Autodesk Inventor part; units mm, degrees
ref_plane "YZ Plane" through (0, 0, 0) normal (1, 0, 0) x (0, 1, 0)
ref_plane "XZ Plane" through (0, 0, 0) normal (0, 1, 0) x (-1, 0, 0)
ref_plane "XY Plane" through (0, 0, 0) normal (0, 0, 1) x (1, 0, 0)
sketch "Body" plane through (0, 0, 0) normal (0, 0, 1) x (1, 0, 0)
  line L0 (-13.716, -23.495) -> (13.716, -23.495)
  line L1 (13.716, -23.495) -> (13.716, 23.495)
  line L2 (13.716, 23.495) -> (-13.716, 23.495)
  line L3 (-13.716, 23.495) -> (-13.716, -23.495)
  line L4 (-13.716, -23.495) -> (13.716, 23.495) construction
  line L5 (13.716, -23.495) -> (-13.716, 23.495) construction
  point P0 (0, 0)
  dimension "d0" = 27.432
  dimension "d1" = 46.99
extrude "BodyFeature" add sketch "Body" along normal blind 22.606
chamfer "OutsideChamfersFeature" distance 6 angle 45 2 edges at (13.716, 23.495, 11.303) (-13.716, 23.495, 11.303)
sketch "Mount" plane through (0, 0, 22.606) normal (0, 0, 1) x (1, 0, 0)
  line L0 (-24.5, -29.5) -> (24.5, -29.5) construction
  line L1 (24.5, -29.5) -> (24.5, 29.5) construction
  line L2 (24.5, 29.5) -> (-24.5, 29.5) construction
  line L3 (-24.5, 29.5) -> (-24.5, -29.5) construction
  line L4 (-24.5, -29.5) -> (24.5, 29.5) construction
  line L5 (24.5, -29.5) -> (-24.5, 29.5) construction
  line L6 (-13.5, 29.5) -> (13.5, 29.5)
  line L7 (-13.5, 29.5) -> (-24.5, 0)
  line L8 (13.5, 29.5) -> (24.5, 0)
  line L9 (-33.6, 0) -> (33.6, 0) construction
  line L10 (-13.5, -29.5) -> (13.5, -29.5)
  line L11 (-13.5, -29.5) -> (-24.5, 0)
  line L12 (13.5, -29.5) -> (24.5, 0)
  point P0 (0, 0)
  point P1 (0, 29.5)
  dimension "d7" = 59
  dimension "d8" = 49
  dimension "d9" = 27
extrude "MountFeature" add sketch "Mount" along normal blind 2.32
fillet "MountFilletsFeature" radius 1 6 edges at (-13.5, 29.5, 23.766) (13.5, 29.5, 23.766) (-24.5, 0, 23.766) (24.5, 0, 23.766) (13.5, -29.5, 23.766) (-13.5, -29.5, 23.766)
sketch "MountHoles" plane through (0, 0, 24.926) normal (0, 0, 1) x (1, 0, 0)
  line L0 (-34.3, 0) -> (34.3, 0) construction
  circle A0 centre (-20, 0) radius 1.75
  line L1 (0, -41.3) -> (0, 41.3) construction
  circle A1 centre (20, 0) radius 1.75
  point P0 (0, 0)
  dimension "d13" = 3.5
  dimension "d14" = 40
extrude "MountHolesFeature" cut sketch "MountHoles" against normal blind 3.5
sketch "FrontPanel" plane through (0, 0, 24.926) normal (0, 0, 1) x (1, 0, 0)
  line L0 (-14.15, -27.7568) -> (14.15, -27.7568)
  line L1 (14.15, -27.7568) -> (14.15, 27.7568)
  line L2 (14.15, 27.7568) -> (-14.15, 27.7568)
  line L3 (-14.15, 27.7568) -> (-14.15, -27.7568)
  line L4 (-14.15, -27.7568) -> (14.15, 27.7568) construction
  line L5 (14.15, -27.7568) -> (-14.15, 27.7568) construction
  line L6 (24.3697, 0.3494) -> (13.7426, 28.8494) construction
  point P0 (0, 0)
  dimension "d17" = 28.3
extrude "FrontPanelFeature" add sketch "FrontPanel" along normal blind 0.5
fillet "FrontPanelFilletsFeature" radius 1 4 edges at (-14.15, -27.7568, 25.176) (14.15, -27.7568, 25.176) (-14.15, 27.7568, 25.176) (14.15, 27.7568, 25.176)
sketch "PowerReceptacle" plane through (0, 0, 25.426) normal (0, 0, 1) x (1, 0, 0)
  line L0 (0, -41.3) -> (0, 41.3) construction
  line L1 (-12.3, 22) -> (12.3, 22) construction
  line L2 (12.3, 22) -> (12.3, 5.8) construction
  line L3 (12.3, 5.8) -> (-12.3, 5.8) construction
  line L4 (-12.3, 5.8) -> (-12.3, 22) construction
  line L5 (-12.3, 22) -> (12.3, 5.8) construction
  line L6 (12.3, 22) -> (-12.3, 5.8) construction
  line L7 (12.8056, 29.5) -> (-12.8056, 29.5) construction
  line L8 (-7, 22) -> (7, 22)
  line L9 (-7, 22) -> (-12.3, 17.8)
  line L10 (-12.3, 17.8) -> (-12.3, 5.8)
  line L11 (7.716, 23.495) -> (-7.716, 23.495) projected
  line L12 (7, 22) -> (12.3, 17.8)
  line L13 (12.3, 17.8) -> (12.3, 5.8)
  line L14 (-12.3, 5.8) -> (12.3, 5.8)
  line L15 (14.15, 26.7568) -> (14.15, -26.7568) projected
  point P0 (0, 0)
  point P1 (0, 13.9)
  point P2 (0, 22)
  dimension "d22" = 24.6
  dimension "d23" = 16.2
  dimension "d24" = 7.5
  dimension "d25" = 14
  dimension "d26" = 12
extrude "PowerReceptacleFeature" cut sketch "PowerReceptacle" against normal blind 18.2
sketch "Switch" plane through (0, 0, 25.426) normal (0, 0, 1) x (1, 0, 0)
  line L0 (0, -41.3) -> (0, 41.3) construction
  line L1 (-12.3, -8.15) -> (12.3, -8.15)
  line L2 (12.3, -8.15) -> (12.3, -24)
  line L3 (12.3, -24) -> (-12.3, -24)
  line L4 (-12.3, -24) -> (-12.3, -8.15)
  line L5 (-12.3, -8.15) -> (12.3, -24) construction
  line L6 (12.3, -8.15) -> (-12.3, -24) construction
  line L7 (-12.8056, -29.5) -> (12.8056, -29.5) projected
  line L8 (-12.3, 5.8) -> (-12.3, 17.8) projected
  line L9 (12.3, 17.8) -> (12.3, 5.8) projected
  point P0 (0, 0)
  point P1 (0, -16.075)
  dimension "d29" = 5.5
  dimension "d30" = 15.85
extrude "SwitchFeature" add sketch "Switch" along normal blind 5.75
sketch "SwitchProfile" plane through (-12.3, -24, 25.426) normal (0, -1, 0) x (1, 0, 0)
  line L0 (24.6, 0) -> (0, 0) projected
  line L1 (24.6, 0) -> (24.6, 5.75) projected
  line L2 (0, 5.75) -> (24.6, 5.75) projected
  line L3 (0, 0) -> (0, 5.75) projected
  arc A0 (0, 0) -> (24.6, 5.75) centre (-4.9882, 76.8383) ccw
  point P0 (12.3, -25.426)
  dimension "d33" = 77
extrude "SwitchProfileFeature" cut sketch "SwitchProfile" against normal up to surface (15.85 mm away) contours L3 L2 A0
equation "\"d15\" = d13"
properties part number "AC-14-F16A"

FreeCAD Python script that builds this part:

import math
import FreeCAD as App
import Part
import Sketcher
from FreeCAD import Vector


def edges_at(feature, points):
    """Names of the edges that pass closest to the given points."""
    edges = feature.Shape.Edges
    near = lambda p: min(range(len(edges)), key=lambda i: edges[i].distToShape(Part.Vertex(*p))[0])
    return sorted({f"Edge{near(p) + 1}" for p in points})


def add_polygon(sketch, points):
    """Adds a closed chain of lines whose ends are joined by coincident constraints."""
    first, n = sketch.GeometryCount, len(points)
    for a, b in zip(points, points[1:] + points[:1]):
        sketch.addGeometry(Part.LineSegment(App.Vector(*a, 0), App.Vector(*b, 0)), False)
    for i in range(n):
        sketch.addConstraint(Sketcher.Constraint("Coincident", first + i, 2, first + (i + 1) % n, 1))

doc = App.newDocument("Part")
body = doc.addObject("PartDesign::Body", "Body")

# Sketch on XY plane
sketch1 = body.newObject("Sketcher::SketchObject", "Sketch")
sketch1.AttachmentSupport = (doc.getObject("XY_Plane"), [""])
sketch1.MapMode = "FlatFace"
add_polygon(sketch1, [(-14, 23), (-14, -23), (14, -23), (14, 23)])  # lines 0-3
sketch1.addConstraint(Sketcher.Constraint("Vertical", 0))
sketch1.addConstraint(Sketcher.Constraint("Horizontal", 1))
sketch1.addConstraint(Sketcher.Constraint("Vertical", 2))
sketch1.addConstraint(Sketcher.Constraint("Horizontal", 3))
sketch1.addConstraint(Sketcher.Constraint("Symmetric", 0, 2, 2, 2, -1, 1))
sketch1.addConstraint(Sketcher.Constraint("DistanceY", 0, 2, 0, 1, 46.99))
sketch1.addConstraint(Sketcher.Constraint("DistanceX", 1, 1, 1, 2, 27.432))
pad1 = body.newObject("PartDesign::Pad", "Pad")
pad1.Profile = sketch1
pad1.Length = 22.606
doc.recompute()

chamfer = body.newObject("PartDesign::Chamfer", "Chamfer")
chamfer.Base = (pad1, edges_at(pad1, [(13.716, 23.495, 11.303), (-13.716, 23.495, 11.303)]))
chamfer.Size = 6

# Sketch on XY plane
sketch2 = body.newObject("Sketcher::SketchObject", "Sketch001")
sketch2.AttachmentSupport = (doc.getObject("XY_Plane"), [""])
sketch2.MapMode = "FlatFace"
sketch2.AttachmentOffset = App.Placement(Vector(0, 0, 22.606), App.Rotation())
add_polygon(sketch2, [(14, 30), (-14, 30), (-24, 0), (-14, -30), (14, -30), (24, 0)])  # lines 0-5
sketch2.addConstraint(Sketcher.Constraint("Horizontal", 0))
sketch2.addConstraint(Sketcher.Constraint("Horizontal", 3))
sketch2.addConstraint(Sketcher.Constraint("Symmetric", 0, 2, 3, 2, -1, 1))
sketch2.addConstraint(Sketcher.Constraint("Symmetric", 1, 2, 4, 2, -1, 1))
sketch2.addConstraint(Sketcher.Constraint("PointOnObject", 1, 2, -1))
sketch2.addConstraint(Sketcher.Constraint("Parallel", 2, 5))
sketch2.addConstraint(Sketcher.Constraint("Vertical", 0, 2, 2, 2))
sketch2.addConstraint(Sketcher.Constraint("DistanceX", 0, 2, 0, 1, 27.0))
sketch2.addConstraint(Sketcher.Constraint("DistanceY", 2, 2, 0, 2, 59.0))
sketch2.addConstraint(Sketcher.Constraint("DistanceX", 1, 2, 4, 2, 49.0))
pad2 = body.newObject("PartDesign::Pad", "Pad001")
pad2.Profile = sketch2
pad2.Length = 2.32
doc.recompute()

fillet = body.newObject("PartDesign::Fillet", "Fillet")
fillet.Base = (pad2, edges_at(pad2, [
    (-13.5, 29.5, 23.766),
    (13.5, 29.5, 23.766),
    (-24.5, 0, 23.766),
    (24.5, 0, 23.766),
    (13.5, -29.5, 23.766),
    (-13.5, -29.5, 23.766),
]))
fillet.Radius = 1

# Sketch on XY plane
sketch3 = body.newObject("Sketcher::SketchObject", "Sketch002")
sketch3.AttachmentSupport = (doc.getObject("XY_Plane"), [""])
sketch3.MapMode = "FlatFace"
sketch3.AttachmentOffset = App.Placement(Vector(0, 0, 24.926), App.Rotation())
sketch3.addGeometry(Part.Circle(Vector(-20, 0, 0), Vector(0, 0, 1), 1.8), False)
sketch3.addGeometry(Part.Circle(Vector(20, 0, 0), Vector(0, 0, 1), 1.8), False)
sketch3.addConstraint(Sketcher.Constraint("Equal", 0, 1))
sketch3.addConstraint(Sketcher.Constraint("Symmetric", 0, 3, 1, 3, -1, 1))
sketch3.addConstraint(Sketcher.Constraint("PointOnObject", 0, 3, -1))
sketch3.addConstraint(Sketcher.Constraint("Diameter", 0, 3.5))
sketch3.addConstraint(Sketcher.Constraint("DistanceX", 0, 3, 1, 3, 40.0))
pocket1 = body.newObject("PartDesign::Pocket", "Pocket")
pocket1.Profile = sketch3
pocket1.Length = 3.5

# Sketch on XY plane
sketch4 = body.newObject("Sketcher::SketchObject", "Sketch003")
sketch4.AttachmentSupport = (doc.getObject("XY_Plane"), [""])
sketch4.MapMode = "FlatFace"
sketch4.AttachmentOffset = App.Placement(Vector(0, 0, 24.926), App.Rotation())
add_polygon(sketch4, [(-14, 28), (-14, -28), (14, -28), (14, 28)])  # lines 0-3
sketch4.addConstraint(Sketcher.Constraint("Vertical", 0))
sketch4.addConstraint(Sketcher.Constraint("Horizontal", 1))
sketch4.addConstraint(Sketcher.Constraint("Vertical", 2))
sketch4.addConstraint(Sketcher.Constraint("Horizontal", 3))
sketch4.addConstraint(Sketcher.Constraint("Symmetric", 0, 2, 2, 2, -1, 1))
sketch4.addConstraint(Sketcher.Constraint("DistanceX", 1, 1, 1, 2, 28.3))
sketch4.addConstraint(Sketcher.Constraint("DistanceY", 0, 2, 0, 1, 55.5136))
pad3 = body.newObject("PartDesign::Pad", "Pad002")
pad3.Profile = sketch4
pad3.Length = 0.5
doc.recompute()

fillet2 = body.newObject("PartDesign::Fillet", "Fillet001")
fillet2.Base = (pad3, edges_at(pad3, [
    (-14.15, -27.757, 25.176),
    (14.15, -27.757, 25.176),
    (-14.15, 27.757, 25.176),
    (14.15, 27.757, 25.176),
]))
fillet2.Radius = 1

# Sketch on XY plane
sketch5 = body.newObject("Sketcher::SketchObject", "Sketch004")
sketch5.AttachmentSupport = (doc.getObject("XY_Plane"), [""])
sketch5.MapMode = "FlatFace"
sketch5.AttachmentOffset = App.Placement(Vector(0, 0, 25.426), App.Rotation())
add_polygon(sketch5, [(7, 22), (-7, 22), (-12, 18), (-12, 6), (12, 6), (12, 18)])  # lines 0-5
sketch5.addConstraint(Sketcher.Constraint("Horizontal", 0))
sketch5.addConstraint(Sketcher.Constraint("Vertical", 2))
sketch5.addConstraint(Sketcher.Constraint("Horizontal", 3))
sketch5.addConstraint(Sketcher.Constraint("Vertical", 4))
sketch5.addConstraint(Sketcher.Constraint("Symmetric", 1, 2, 4, 2, -2))
sketch5.addConstraint(Sketcher.Constraint("Equal", 1, 5))
sketch5.addConstraint(Sketcher.Constraint("DistanceX", 0, 2, 0, 1, 14.0))
sketch5.addConstraint(Sketcher.Constraint("DistanceY", 2, 2, 2, 1, 12.0))
sketch5.addConstraint(Sketcher.Constraint("DistanceX", 3, 1, 3, 2, 24.6))
sketch5.addConstraint(Sketcher.Constraint("DistanceY", 2, 2, 0, 2, 16.2))
sketch5.addConstraint(Sketcher.Constraint("DistanceY", -1, 1, 0, 2, 22.0))
pocket2 = body.newObject("PartDesign::Pocket", "Pocket001")
pocket2.Profile = sketch5
pocket2.Length = 18.2

# Sketch on XY plane
sketch6 = body.newObject("Sketcher::SketchObject", "Sketch005")
sketch6.AttachmentSupport = (doc.getObject("XY_Plane"), [""])
sketch6.MapMode = "FlatFace"
sketch6.AttachmentOffset = App.Placement(Vector(0, 0, 25.426), App.Rotation())
add_polygon(sketch6, [(12, -8), (-12, -8), (-12, -24), (12, -24)])  # lines 0-3
sketch6.addConstraint(Sketcher.Constraint("Horizontal", 0))
sketch6.addConstraint(Sketcher.Constraint("Vertical", 1))
sketch6.addConstraint(Sketcher.Constraint("Horizontal", 2))
sketch6.addConstraint(Sketcher.Constraint("Vertical", 3))
sketch6.addConstraint(Sketcher.Constraint("DistanceY", 1, 2, 1, 1, 15.85))
sketch6.addConstraint(Sketcher.Constraint("DistanceX", 0, 2, 0, 1, 24.6))
sketch6.addConstraint(Sketcher.Constraint("DistanceY", 1, 2, -1, 1, 24.0))
sketch6.addConstraint(Sketcher.Constraint("DistanceX", 0, 2, -1, 1, 12.3))
pad4 = body.newObject("PartDesign::Pad", "Pad003")
pad4.Profile = sketch6
pad4.Length = 5.75

# Sketch on XZ plane
sketch7 = body.newObject("Sketcher::SketchObject", "Sketch006")
sketch7.AttachmentSupport = (doc.getObject("XZ_Plane"), [""])
sketch7.MapMode = "FlatFace"
sketch7.AttachmentOffset = App.Placement(Vector(0, 0, 24), App.Rotation())
sketch7.addGeometry(Part.LineSegment(Vector(-12, 31, 0), Vector(-12, 25, 0)), False)
sketch7.addGeometry(Part.ArcOfCircle(Part.Circle(Vector(-17, 102, 0), Vector(0, 0, 1), 77), math.radians(-86.29), math.radians(-67.4)), False)
sketch7.addGeometry(Part.LineSegment(Vector(12, 31, 0), Vector(-12, 31, 0)), False)
sketch7.addConstraint(Sketcher.Constraint("Coincident", 0, 2, 1, 1))
sketch7.addConstraint(Sketcher.Constraint("Coincident", 1, 2, 2, 1))
sketch7.addConstraint(Sketcher.Constraint("Coincident", 2, 2, 0, 1))
sketch7.addConstraint(Sketcher.Constraint("Vertical", 0))
sketch7.addConstraint(Sketcher.Constraint("Horizontal", 2))
sketch7.addConstraint(Sketcher.Constraint("Radius", 1, 77.0))
sketch7.addConstraint(Sketcher.Constraint("DistanceX", 2, 2, 2, 1, 24.6))
sketch7.addConstraint(Sketcher.Constraint("DistanceY", 0, 2, 0, 1, 5.75))
sketch7.addConstraint(Sketcher.Constraint("DistanceX", 0, 2, -1, 1, 12.3))
sketch7.addConstraint(Sketcher.Constraint("DistanceY", -1, 1, 0, 2, 25.426))
pocket3 = body.newObject("PartDesign::Pocket", "Pocket002")
pocket3.Profile = sketch7
pocket3.Length = 15.85

doc.recompute()
